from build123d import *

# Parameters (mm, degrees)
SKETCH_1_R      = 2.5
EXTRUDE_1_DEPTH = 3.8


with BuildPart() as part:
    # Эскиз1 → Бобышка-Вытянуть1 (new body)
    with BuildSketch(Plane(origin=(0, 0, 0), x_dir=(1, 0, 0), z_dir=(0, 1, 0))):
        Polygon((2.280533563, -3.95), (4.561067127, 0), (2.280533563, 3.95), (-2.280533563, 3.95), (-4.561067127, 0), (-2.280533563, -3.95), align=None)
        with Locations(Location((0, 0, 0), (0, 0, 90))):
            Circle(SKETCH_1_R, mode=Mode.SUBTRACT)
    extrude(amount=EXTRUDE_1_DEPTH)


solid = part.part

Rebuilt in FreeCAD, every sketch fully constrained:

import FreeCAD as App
import Part
import Sketcher
from FreeCAD import Vector
Q = App.Units.Quantity

doc = App.newDocument("Part")
body = doc.addObject("PartDesign::Body", "Body")

# Sketch on XZ plane
sketch1 = doc.addObject("Sketcher::SketchObject", "Sketch")
body.addObject(sketch1)
sketch1.AttachmentSupport = (doc.XZ_Plane, [""])
sketch1.MapMode = "FlatFace"
sketch1.addGeometry(Part.LineSegment(Vector(2.280534, 3.95, 0), Vector(4.561067, 0, 0)), False)
sketch1.addGeometry(Part.LineSegment(Vector(4.561067, 0, 0), Vector(2.280534, -3.95, 0)), False)
sketch1.addGeometry(Part.LineSegment(Vector(2.280534, -3.95, 0), Vector(-2.280534, -3.95, 0)), False)
sketch1.addGeometry(Part.LineSegment(Vector(-2.280534, -3.95, 0), Vector(-4.561067, 0, 0)), False)
sketch1.addGeometry(Part.LineSegment(Vector(-4.561067, 0, 0), Vector(-2.280534, 3.95, 0)), False)
sketch1.addGeometry(Part.LineSegment(Vector(-2.280534, 3.95, 0), Vector(2.280534, 3.95, 0)), False)
sketch1.addGeometry(Part.Circle(Vector(0, 0, 0), Vector(0, 0, 1), 2.5), False)
sketch1.addConstraint(Sketcher.Constraint("Coincident", 0, 2, 1, 1))
sketch1.addConstraint(Sketcher.Constraint("Coincident", 1, 2, 2, 1))
sketch1.addConstraint(Sketcher.Constraint("Coincident", 2, 2, 3, 1))
sketch1.addConstraint(Sketcher.Constraint("Coincident", 3, 2, 4, 1))
sketch1.addConstraint(Sketcher.Constraint("Coincident", 4, 2, 5, 1))
sketch1.addConstraint(Sketcher.Constraint("Coincident", 5, 2, 0, 1))
sketch1.addConstraint(Sketcher.Constraint("Horizontal", 2))
sketch1.addConstraint(Sketcher.Constraint("Horizontal", 5))
sketch1.addConstraint(Sketcher.Constraint("Coincident", 6, 3, -1, 1))
sketch1.addConstraint(Sketcher.Constraint("Symmetric", 0, 2, 3, 2, -1, 1))
sketch1.addConstraint(Sketcher.Constraint("Symmetric", 1, 2, 4, 2, -1, 1))
sketch1.addConstraint(Sketcher.Constraint("PointOnObject", 0, 2, -1))
sketch1.addConstraint(Sketcher.Constraint("Parallel", 0, 3))
sketch1.addConstraint(Sketcher.Constraint("Vertical", 2, 2, 4, 2))
sketch1.addConstraint(Sketcher.Constraint("Diameter", 6, 5.0))
sketch1.addConstraint(Sketcher.Constraint("Angle", 0, Q("-60 deg")))
sketch1.addConstraint(Sketcher.Constraint("DistanceY", 2, 2, 4, 2, 7.9))
sketch1.addConstraint(Sketcher.Constraint("DistanceX", 2, 2, 0, 2, 6.841601))
pad1 = doc.addObject("PartDesign::Pad", "Pad")
body.addObject(pad1)
pad1.Profile = sketch1
pad1.Length = 3.8
pad1.Reversed = True

doc.recompute()
